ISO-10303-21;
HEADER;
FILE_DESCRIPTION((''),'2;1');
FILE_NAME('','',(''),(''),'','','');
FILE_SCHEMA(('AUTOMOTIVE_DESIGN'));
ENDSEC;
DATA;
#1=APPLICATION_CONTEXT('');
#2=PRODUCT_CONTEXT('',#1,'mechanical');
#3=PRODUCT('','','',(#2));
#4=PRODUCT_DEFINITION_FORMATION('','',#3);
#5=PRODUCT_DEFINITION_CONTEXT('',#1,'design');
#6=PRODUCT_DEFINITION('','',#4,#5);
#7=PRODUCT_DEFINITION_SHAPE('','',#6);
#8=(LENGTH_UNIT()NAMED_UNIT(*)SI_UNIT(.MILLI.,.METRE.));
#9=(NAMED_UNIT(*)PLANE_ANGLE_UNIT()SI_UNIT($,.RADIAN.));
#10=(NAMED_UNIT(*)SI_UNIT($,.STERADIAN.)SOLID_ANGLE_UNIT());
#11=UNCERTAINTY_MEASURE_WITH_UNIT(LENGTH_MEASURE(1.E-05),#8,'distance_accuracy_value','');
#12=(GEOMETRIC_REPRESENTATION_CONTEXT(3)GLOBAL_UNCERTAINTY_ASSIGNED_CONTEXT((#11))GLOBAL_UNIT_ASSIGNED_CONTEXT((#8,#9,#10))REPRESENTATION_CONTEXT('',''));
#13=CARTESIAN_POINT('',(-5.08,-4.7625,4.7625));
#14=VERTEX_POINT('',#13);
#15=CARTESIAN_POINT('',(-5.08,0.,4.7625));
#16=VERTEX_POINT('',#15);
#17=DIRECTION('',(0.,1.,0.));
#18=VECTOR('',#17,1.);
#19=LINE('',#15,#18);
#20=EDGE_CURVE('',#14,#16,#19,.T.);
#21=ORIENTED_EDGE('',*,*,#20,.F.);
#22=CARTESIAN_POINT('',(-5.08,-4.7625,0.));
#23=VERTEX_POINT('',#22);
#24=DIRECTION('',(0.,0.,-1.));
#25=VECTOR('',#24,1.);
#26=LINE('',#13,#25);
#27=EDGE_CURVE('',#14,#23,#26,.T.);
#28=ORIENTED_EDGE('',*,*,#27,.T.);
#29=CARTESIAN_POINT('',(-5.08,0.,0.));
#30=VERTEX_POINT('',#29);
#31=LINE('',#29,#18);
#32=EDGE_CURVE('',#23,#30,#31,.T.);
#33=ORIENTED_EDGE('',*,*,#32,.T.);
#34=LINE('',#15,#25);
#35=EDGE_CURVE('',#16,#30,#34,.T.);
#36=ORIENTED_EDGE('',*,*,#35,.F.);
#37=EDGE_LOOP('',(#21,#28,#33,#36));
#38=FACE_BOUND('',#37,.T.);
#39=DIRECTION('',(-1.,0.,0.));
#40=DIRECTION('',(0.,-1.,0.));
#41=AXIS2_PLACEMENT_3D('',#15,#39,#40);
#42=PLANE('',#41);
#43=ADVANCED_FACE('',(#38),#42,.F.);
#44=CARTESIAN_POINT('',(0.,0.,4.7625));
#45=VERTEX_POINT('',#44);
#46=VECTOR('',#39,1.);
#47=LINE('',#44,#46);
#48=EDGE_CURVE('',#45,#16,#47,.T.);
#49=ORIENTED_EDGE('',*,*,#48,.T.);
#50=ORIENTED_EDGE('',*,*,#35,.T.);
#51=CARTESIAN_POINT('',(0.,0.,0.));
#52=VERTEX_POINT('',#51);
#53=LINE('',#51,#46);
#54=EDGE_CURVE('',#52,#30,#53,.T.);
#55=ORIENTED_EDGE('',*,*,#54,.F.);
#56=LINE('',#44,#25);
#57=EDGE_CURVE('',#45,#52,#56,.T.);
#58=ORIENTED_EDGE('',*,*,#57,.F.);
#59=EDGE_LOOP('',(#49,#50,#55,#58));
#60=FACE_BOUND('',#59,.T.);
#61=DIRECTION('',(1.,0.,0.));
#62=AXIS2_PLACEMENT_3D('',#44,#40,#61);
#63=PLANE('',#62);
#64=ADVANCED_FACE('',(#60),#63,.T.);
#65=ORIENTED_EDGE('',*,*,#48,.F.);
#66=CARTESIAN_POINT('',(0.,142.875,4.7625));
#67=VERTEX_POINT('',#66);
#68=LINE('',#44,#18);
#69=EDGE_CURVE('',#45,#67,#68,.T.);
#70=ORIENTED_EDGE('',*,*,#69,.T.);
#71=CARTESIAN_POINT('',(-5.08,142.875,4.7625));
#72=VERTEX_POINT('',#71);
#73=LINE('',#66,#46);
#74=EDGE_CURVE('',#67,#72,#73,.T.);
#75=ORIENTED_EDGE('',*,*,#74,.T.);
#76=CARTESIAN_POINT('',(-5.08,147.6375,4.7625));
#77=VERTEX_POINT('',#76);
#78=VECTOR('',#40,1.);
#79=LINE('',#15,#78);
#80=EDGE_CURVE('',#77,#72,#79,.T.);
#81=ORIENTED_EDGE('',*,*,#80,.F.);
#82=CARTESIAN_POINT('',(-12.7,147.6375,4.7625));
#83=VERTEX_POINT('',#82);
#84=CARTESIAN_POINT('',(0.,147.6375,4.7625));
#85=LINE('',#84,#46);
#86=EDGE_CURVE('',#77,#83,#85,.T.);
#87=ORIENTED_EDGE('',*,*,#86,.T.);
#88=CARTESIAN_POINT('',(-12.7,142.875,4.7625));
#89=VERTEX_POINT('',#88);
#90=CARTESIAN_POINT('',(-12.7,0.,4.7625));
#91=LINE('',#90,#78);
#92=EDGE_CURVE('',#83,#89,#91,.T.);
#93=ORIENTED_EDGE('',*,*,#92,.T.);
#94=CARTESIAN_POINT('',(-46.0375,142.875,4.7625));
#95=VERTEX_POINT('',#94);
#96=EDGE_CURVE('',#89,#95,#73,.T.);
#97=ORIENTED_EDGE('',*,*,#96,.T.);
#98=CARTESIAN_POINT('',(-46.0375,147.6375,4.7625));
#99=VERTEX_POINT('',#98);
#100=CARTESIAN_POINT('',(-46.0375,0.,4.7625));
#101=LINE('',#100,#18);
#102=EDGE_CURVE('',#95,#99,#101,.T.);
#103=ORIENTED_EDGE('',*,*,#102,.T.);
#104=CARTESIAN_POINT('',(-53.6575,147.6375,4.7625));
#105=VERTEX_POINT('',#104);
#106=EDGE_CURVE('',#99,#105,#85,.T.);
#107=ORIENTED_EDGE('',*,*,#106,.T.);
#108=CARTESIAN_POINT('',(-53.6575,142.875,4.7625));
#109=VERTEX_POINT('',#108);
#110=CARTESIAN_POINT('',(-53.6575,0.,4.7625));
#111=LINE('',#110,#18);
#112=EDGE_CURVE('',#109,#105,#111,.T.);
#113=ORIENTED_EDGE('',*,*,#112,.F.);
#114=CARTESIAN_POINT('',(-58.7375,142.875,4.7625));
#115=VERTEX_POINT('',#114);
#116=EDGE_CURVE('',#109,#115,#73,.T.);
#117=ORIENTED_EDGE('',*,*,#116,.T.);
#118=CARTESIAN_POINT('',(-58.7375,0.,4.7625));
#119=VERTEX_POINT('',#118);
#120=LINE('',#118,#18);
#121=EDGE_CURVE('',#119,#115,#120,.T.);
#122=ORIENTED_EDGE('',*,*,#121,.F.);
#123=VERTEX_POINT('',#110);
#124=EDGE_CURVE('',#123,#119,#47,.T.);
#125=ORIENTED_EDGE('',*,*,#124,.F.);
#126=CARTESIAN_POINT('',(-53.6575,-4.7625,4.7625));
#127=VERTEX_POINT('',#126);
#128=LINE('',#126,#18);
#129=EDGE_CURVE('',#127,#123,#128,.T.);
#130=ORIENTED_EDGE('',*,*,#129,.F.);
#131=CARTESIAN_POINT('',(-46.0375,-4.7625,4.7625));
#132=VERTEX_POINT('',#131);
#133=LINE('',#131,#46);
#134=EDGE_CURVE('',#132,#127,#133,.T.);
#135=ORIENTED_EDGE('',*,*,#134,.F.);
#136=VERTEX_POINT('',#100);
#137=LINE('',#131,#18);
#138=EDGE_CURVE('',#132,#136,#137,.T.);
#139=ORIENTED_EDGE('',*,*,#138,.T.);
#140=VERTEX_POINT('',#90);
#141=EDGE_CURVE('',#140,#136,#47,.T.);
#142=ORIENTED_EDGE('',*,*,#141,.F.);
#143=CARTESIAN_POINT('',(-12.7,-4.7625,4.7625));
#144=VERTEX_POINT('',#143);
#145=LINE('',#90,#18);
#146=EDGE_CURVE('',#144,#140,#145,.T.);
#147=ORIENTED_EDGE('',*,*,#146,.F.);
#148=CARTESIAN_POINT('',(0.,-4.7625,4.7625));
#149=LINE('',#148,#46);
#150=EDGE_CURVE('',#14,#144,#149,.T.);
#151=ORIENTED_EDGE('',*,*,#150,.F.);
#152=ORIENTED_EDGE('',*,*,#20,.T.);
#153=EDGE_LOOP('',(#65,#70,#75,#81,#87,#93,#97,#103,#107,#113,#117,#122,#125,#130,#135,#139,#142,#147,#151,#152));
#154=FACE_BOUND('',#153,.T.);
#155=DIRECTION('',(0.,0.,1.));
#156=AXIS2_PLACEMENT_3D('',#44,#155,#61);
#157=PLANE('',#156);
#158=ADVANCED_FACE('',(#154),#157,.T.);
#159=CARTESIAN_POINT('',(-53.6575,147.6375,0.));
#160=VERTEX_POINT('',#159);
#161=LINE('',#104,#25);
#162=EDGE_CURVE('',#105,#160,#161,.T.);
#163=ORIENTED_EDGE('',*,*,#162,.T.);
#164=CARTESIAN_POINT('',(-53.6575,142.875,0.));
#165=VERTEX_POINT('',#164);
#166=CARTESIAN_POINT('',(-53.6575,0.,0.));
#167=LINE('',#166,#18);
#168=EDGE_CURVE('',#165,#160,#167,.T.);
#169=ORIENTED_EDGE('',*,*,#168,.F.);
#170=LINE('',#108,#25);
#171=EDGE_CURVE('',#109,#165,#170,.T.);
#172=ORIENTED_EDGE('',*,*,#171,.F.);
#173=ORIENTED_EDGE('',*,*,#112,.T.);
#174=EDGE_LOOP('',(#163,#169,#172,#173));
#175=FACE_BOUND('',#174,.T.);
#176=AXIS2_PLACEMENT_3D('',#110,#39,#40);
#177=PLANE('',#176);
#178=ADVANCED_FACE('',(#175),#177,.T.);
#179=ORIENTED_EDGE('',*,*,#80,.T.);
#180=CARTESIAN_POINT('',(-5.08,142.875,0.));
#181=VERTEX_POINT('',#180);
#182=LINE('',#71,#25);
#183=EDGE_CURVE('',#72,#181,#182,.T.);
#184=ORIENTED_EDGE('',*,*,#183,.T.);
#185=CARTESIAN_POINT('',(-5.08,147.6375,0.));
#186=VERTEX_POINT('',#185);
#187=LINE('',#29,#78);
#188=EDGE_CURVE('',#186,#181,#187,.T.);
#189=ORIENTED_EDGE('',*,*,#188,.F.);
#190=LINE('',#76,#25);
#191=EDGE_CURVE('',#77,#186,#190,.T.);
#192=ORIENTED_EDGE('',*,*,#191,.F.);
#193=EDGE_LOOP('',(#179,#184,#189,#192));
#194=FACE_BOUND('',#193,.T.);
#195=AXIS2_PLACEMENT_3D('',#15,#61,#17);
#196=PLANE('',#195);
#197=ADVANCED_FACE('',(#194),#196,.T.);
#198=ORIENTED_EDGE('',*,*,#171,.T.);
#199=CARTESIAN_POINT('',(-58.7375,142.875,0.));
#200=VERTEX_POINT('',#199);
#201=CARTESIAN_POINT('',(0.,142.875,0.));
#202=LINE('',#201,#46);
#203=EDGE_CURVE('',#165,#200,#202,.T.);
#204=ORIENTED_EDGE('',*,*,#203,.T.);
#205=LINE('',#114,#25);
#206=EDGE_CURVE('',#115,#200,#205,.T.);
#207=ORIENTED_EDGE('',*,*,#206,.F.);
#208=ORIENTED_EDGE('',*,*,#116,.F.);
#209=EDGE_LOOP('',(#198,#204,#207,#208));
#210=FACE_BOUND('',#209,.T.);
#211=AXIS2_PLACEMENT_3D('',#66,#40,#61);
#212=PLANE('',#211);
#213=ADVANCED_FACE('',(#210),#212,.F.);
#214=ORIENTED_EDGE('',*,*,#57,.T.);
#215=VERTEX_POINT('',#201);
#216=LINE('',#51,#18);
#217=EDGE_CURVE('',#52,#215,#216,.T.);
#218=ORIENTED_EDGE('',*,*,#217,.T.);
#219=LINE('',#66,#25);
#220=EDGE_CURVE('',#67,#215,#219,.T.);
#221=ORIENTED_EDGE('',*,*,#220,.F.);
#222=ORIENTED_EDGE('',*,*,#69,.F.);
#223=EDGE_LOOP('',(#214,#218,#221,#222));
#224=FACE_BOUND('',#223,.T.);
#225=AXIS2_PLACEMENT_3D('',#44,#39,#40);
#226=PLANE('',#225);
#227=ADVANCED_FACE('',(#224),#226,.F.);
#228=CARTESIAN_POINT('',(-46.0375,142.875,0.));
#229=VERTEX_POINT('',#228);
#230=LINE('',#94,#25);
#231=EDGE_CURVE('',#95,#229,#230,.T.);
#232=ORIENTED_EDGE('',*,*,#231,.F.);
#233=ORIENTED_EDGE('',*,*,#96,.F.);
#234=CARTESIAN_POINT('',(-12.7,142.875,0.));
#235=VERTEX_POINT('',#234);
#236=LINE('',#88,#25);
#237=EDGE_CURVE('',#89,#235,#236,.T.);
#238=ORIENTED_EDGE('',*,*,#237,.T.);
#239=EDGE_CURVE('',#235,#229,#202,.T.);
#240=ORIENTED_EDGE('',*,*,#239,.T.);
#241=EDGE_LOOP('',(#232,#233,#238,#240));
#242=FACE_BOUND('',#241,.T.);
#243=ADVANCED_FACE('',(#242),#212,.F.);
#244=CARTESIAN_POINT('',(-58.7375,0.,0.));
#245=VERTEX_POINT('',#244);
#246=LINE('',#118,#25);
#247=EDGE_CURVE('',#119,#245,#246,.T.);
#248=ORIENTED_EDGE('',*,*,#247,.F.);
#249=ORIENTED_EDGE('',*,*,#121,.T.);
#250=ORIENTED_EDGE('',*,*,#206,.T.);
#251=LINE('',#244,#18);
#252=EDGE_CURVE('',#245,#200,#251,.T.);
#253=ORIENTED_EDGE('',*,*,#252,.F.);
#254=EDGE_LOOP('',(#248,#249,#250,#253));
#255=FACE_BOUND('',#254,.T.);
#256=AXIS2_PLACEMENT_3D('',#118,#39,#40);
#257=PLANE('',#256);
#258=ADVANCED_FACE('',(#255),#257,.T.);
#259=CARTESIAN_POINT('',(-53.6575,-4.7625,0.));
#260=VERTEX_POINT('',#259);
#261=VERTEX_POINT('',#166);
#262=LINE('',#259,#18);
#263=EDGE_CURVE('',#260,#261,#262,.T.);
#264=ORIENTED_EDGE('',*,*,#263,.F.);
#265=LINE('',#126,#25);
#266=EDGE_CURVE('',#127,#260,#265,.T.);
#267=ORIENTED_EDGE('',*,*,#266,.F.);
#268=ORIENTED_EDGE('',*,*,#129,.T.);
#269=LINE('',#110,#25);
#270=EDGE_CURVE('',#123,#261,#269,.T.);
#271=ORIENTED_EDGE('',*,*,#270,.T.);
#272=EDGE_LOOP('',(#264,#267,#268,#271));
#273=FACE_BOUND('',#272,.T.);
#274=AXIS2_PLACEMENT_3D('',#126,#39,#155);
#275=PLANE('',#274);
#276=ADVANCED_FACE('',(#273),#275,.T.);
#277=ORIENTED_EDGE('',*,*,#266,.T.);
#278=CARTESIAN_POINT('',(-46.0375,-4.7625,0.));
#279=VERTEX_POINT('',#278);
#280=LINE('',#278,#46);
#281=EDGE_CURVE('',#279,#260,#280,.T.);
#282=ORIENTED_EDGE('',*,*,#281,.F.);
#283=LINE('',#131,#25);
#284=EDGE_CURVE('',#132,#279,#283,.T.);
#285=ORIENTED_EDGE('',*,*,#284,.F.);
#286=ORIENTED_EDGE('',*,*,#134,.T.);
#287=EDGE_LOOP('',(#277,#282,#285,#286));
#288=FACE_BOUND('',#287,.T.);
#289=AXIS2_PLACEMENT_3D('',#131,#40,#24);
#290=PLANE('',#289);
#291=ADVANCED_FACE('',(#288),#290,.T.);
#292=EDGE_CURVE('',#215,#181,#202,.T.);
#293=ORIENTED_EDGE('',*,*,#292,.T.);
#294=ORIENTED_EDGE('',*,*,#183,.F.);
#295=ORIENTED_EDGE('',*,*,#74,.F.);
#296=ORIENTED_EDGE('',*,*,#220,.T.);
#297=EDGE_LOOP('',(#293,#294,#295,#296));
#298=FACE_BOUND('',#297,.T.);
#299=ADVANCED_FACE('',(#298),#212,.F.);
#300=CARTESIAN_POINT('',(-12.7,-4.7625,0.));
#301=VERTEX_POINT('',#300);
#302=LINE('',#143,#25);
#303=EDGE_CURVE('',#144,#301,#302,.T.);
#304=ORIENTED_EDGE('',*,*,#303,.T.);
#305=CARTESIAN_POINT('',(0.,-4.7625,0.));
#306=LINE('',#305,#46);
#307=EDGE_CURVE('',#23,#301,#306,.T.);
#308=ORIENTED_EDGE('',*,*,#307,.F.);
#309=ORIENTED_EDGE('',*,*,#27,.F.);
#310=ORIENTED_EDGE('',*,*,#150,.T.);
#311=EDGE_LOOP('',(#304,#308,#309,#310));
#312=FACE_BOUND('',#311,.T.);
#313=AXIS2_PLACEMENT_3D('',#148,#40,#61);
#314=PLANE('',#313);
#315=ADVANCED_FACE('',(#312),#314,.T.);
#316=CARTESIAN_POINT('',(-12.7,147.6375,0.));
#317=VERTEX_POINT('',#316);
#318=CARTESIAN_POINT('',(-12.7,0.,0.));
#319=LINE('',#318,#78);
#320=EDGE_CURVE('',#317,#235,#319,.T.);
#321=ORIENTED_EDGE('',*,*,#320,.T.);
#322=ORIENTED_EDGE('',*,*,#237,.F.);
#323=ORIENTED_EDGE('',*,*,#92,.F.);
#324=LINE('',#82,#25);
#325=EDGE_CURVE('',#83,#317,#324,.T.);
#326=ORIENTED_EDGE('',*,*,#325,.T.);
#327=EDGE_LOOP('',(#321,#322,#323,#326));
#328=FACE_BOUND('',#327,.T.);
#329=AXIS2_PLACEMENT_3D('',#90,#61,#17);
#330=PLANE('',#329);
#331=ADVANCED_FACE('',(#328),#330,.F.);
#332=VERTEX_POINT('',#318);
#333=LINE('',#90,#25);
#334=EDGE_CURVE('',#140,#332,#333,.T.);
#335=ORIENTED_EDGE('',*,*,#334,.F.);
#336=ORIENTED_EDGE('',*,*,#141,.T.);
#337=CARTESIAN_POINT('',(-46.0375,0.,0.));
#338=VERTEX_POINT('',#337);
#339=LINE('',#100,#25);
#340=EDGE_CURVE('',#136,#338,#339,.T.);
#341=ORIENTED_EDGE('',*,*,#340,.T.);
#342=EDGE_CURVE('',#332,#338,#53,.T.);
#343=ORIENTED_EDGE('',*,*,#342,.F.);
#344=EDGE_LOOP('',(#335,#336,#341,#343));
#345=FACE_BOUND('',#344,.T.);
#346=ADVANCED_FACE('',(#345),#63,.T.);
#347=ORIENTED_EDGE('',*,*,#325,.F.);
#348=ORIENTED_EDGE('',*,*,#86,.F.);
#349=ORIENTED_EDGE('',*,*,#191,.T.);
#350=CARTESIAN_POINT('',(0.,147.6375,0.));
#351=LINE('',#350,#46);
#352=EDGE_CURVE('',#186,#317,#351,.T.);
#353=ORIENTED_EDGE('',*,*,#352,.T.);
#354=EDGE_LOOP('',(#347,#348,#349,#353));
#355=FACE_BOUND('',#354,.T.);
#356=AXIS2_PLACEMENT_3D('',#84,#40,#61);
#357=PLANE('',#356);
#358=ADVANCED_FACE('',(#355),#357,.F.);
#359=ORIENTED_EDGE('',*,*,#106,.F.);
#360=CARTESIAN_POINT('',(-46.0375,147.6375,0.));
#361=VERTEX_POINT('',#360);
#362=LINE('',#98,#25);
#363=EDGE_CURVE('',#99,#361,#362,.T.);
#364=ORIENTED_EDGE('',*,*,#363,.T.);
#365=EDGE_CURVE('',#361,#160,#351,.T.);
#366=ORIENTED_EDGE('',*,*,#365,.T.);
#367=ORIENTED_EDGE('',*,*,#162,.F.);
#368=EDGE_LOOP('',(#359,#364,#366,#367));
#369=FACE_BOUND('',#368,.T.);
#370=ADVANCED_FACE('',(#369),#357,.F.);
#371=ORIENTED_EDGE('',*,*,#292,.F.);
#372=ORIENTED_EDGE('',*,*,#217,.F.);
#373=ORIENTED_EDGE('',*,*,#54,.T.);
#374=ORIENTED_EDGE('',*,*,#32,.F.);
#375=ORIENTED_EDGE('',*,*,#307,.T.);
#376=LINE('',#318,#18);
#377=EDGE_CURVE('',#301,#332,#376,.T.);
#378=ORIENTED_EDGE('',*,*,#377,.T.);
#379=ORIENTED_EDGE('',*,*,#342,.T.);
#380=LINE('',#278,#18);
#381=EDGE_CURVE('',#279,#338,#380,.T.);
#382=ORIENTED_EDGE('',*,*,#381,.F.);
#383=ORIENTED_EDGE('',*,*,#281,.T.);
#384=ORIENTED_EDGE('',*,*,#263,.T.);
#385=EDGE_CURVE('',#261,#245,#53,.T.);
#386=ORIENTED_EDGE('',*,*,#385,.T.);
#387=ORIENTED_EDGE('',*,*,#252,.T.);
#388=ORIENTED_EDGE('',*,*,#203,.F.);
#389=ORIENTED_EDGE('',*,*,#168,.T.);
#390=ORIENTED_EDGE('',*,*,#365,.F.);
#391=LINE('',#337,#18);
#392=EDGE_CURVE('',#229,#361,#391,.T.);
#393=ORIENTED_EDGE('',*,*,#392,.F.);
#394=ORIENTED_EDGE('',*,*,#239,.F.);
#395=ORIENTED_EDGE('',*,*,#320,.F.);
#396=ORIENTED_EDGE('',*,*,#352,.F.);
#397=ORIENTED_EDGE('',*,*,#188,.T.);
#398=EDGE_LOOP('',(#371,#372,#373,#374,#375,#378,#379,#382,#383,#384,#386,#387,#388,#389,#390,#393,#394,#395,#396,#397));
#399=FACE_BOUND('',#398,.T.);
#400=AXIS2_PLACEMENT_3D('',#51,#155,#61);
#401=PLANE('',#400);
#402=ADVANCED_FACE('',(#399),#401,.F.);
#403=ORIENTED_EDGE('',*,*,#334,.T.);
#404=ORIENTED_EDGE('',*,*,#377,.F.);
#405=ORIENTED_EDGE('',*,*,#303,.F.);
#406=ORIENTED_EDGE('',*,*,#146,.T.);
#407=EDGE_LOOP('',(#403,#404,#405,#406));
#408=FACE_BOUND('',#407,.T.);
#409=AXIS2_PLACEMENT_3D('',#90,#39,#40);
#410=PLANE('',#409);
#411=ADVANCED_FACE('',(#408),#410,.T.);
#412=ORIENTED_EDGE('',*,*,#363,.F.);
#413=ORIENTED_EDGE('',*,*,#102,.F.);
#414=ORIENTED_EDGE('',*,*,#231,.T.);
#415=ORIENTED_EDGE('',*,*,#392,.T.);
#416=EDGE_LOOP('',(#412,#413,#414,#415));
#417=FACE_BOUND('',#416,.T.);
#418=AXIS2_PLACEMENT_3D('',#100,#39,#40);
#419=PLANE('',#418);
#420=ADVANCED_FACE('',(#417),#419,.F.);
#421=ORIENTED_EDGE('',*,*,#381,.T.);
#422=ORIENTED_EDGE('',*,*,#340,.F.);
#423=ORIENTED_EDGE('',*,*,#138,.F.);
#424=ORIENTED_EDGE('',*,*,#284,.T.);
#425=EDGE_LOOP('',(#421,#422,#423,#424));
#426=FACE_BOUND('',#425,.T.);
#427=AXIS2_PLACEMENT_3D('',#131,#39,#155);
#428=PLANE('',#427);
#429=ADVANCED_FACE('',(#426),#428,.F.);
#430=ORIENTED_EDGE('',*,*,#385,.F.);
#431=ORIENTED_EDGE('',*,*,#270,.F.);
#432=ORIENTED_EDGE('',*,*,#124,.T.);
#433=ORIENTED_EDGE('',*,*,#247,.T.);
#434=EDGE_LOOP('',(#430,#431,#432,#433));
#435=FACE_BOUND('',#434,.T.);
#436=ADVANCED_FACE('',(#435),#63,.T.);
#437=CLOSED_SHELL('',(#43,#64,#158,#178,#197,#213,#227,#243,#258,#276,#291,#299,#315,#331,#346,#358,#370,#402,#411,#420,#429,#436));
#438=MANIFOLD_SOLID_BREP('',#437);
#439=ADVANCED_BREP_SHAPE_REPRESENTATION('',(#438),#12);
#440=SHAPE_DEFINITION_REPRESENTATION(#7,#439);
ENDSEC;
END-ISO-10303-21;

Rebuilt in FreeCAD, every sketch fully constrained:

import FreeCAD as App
import Part
import Sketcher
from FreeCAD import Vector
Q = App.Units.Quantity


def add_polygon(sketch, points):
    """Adds a closed chain of lines whose ends are joined by coincident constraints."""
    first, n = sketch.GeometryCount, len(points)
    for a, b in zip(points, points[1:] + points[:1]):
        sketch.addGeometry(Part.LineSegment(App.Vector(*a, 0), App.Vector(*b, 0)), False)
    for i in range(n):
        sketch.addConstraint(Sketcher.Constraint("Coincident", first + i, 2, first + (i + 1) % n, 1))

doc = App.newDocument("Part")
body = doc.addObject("PartDesign::Body", "Body")

sketch1 = body.newObject("Sketcher::SketchObject", "Sketch")
sketch1.AttachmentSupport = (doc.getObject("XY_Plane"), [""])
sketch1.MapMode = "FlatFace"
add_polygon(sketch1, [(-12.7, -4.7625), (-5.08, -4.7625), (-5.08, 0), (0, 0), (0, 142.875), (-5.08, 142.875), (-5.08, 147.6375), (-12.7, 147.6375), (-12.7, 142.875), (-46.0375, 142.875), (-46.0375, 147.6375), (-53.6575, 147.6375), (-53.6575, 142.875), (-58.7375, 142.875), (-58.7375, 0), (-53.6575, 0), (-53.6575, -4.7625), (-46.0375, -4.7625), (-46.0375, 0), (-12.7, 0)])
sketch1.addConstraint([
    Sketcher.Constraint("Horizontal", 0),
    Sketcher.Constraint("Vertical", 1),
    Sketcher.Constraint("Horizontal", 2),
    Sketcher.Constraint("Vertical", 3),
    Sketcher.Constraint("Horizontal", 4),
    Sketcher.Constraint("Vertical", 5),
    Sketcher.Constraint("Horizontal", 6),
    Sketcher.Constraint("Vertical", 7),
    Sketcher.Constraint("Horizontal", 8),
    Sketcher.Constraint("Vertical", 9),
    Sketcher.Constraint("Horizontal", 10),
    Sketcher.Constraint("Vertical", 11),
    Sketcher.Constraint("Horizontal", 12),
    Sketcher.Constraint("Vertical", 13),
    Sketcher.Constraint("Horizontal", 14),
    Sketcher.Constraint("Vertical", 15),
    Sketcher.Constraint("Horizontal", 16),
    Sketcher.Constraint("Vertical", 17),
    Sketcher.Constraint("Horizontal", 18),
    Sketcher.Constraint("Vertical", 19),
    Sketcher.Constraint("Coincident", 2, 2, -1, 1),
    Sketcher.Constraint("PointOnObject", 13, 2, -1),
    Sketcher.Constraint("PointOnObject", 17, 2, -1),
    Sketcher.Constraint("Horizontal", 4, 2, 7, 2),
    Sketcher.Constraint("Horizontal", 6, 2, 9, 2),
    Sketcher.Constraint("Horizontal", 8, 2, 11, 2),
    Sketcher.Constraint("Horizontal", 0, 2, 15, 2),
    Sketcher.Constraint("Vertical", 1, 2, 4, 2),
    Sketcher.Constraint("Vertical", 11, 2, 14, 2),
    Sketcher.Constraint("Vertical", 9, 2, 16, 2),
    Sketcher.Constraint("Vertical", 7, 2, 18, 2),
    Sketcher.Constraint("Equal", 6, 10),
    Sketcher.Constraint("Equal", 4, 12),
    Sketcher.Constraint("Equal", 1, 5),
    Sketcher.Constraint("DistanceX", 0, 1, 0, 2, Q("0.3 in")),
    Sketcher.Constraint("DistanceX", 2, 1, 2, 2, Q("0.2 in")),
    Sketcher.Constraint("DistanceY", 0, 2, 5, 2, Q("6 in")),
    Sketcher.Constraint("DistanceX", 8, 2, 8, 1, Q("1.3125 in")),
    Sketcher.Constraint("DistanceY", 1, 1, 1, 2, Q("0.1875 in")),
])
pad1 = body.newObject("PartDesign::Pad", "Pad")
pad1.Profile = sketch1
pad1.Length = Q("0.1875 in")

doc.recompute()
